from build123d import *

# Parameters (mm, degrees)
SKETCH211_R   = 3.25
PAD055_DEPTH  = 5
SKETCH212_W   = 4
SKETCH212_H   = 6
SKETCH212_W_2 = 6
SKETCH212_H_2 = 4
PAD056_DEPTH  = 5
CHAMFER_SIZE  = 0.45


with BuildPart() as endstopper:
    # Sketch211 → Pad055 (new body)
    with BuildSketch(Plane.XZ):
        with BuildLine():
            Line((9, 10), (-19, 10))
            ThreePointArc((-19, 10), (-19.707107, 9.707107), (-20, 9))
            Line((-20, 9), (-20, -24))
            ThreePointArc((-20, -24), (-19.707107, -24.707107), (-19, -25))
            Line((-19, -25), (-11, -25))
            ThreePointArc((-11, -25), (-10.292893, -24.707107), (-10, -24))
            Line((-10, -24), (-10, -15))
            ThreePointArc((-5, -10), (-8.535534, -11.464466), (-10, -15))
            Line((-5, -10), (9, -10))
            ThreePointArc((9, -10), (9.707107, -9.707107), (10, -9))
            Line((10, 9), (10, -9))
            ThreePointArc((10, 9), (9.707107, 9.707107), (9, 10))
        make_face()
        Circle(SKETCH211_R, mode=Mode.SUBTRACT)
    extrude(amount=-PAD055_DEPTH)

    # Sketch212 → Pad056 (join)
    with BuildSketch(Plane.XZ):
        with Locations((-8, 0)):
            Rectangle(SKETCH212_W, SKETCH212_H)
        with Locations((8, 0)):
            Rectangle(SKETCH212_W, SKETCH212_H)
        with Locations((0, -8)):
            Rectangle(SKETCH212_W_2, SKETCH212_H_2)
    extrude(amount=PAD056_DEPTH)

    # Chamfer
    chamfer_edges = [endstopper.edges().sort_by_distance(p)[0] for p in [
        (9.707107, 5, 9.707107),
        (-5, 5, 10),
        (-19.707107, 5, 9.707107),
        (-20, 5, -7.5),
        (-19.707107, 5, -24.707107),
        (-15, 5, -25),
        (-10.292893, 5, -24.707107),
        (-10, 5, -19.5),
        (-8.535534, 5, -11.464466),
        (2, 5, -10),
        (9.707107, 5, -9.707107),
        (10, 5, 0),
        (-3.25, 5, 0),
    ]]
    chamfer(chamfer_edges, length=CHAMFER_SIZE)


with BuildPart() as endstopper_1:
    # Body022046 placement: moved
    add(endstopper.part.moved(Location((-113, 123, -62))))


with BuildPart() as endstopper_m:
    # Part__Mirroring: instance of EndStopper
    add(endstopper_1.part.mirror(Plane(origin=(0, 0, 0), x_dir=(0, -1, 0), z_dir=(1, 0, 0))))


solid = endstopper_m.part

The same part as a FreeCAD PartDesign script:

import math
import FreeCAD as App
import Part
import Sketcher
from FreeCAD import Vector


def edges_at(feature, points):
    """Names of the edges that pass closest to the given points."""
    edges = feature.Shape.Edges
    near = lambda p: min(range(len(edges)), key=lambda i: edges[i].distToShape(Part.Vertex(*p))[0])
    return sorted({f"Edge{near(p) + 1}" for p in points})

doc = App.newDocument("Part")
body = doc.addObject("PartDesign::Body", "Body")

sketch1 = body.newObject("Sketcher::SketchObject", "Sketch")
sketch1.AttachmentSupport = (doc.getObject("XZ_Plane"), [""])
sketch1.MapMode = "FlatFace"
sketch1.addGeometry([
    Part.LineSegment(Vector(9, 10, 0), Vector(-19, 10, 0)),
    Part.ArcOfCircle(Part.Circle(Vector(-19, 9, 0), Vector(0, 0, 1), 1), math.radians(90), math.radians(180)),
    Part.LineSegment(Vector(-20, 9, 0), Vector(-20, -24, 0)),
    Part.ArcOfCircle(Part.Circle(Vector(-19, -24, 0), Vector(0, 0, 1), 1), math.radians(180), math.radians(270)),
    Part.LineSegment(Vector(-19, -25, 0), Vector(-11, -25, 0)),
    Part.ArcOfCircle(Part.Circle(Vector(-11, -24, 0), Vector(0, 0, 1), 1), math.radians(-90), math.radians(0)),
    Part.LineSegment(Vector(-10, -24, 0), Vector(-10, -15, 0)),
    Part.ArcOfCircle(Part.Circle(Vector(-5, -15, 0), Vector(0, 0, 1), 5), math.radians(90), math.radians(180)),
    Part.LineSegment(Vector(-5, -10, 0), Vector(9, -10, 0)),
    Part.ArcOfCircle(Part.Circle(Vector(9, -9, 0), Vector(0, 0, 1), 1), math.radians(-90), math.radians(0)),
    Part.LineSegment(Vector(10, -9, 0), Vector(10, 9, 0)),
    Part.ArcOfCircle(Part.Circle(Vector(9, 9, 0), Vector(0, 0, 1), 1), math.radians(0), math.radians(90)),
    Part.Circle(Vector(0, 0, 0), Vector(0, 0, 1), 3.2),
], False)
sketch1.addConstraint([
    Sketcher.Constraint("Tangent", 0, 2, 1, 1),
    Sketcher.Constraint("Tangent", 1, 2, 2, 1),
    Sketcher.Constraint("Tangent", 2, 2, 3, 1),
    Sketcher.Constraint("Tangent", 3, 2, 4, 1),
    Sketcher.Constraint("Tangent", 4, 2, 5, 1),
    Sketcher.Constraint("Tangent", 5, 2, 6, 1),
    Sketcher.Constraint("Tangent", 6, 2, 7, 2),
    Sketcher.Constraint("Tangent", 7, 1, 8, 1),
    Sketcher.Constraint("Tangent", 8, 2, 9, 1),
    Sketcher.Constraint("Tangent", 9, 2, 10, 1),
    Sketcher.Constraint("Tangent", 10, 2, 11, 1),
    Sketcher.Constraint("Tangent", 11, 2, 0, 1),
    Sketcher.Constraint("Horizontal", 0),
    Sketcher.Constraint("Vertical", 2),
    Sketcher.Constraint("Horizontal", 4),
    Sketcher.Constraint("Vertical", 6),
    Sketcher.Constraint("Horizontal", 8),
    Sketcher.Constraint("Vertical", 10),
    Sketcher.Constraint("Coincident", 12, 3, -1, 1),
    Sketcher.Constraint("Equal", 1, 3),
    Sketcher.Constraint("Equal", 3, 5),
    Sketcher.Constraint("Equal", 5, 9),
    Sketcher.Constraint("Equal", 9, 11),
    Sketcher.Constraint("Radius", 1, 0.999999),
    Sketcher.Constraint("Radius", 7, 5.0),
    Sketcher.Constraint("Diameter", 12, 6.5),
    Sketcher.Constraint("DistanceX", 0, 2, 0, 1, 28.0),
    Sketcher.Constraint("DistanceX", 4, 1, 4, 2, 8.0),
    Sketcher.Constraint("DistanceY", 2, 2, 2, 1, 33.0),
    Sketcher.Constraint("DistanceY", 6, 1, 6, 2, 9.0),
    Sketcher.Constraint("DistanceX", 1, 3, -1, 1, 19.000001),
    Sketcher.Constraint("DistanceY", -1, 1, 1, 3, 9.000001),
])
pad1 = body.newObject("PartDesign::Pad", "Pad")
pad1.Profile = sketch1
pad1.Length = 5
pad1.Reversed = True

sketch2 = body.newObject("Sketcher::SketchObject", "Sketch001")
sketch2.AttachmentSupport = (doc.getObject("XZ_Plane"), [""])
sketch2.MapMode = "FlatFace"
sketch2.addGeometry([
    Part.LineSegment(Vector(-10, 3, 0), Vector(-10, -3, 0)),
    Part.LineSegment(Vector(-10, -3, 0), Vector(-6, -3, 0)),
    Part.LineSegment(Vector(-6, -3, 0), Vector(-6, 3, 0)),
    Part.LineSegment(Vector(-6, 3, 0), Vector(-10, 3, 0)),
    Part.LineSegment(Vector(6, 3, 0), Vector(6, -3, 0)),
    Part.LineSegment(Vector(6, -3, 0), Vector(10, -3, 0)),
    Part.LineSegment(Vector(10, -3, 0), Vector(10, 3, 0)),
    Part.LineSegment(Vector(10, 3, 0), Vector(6, 3, 0)),
    Part.LineSegment(Vector(-3, -6, 0), Vector(-3, -10, 0)),
    Part.LineSegment(Vector(-3, -10, 0), Vector(3, -10, 0)),
    Part.LineSegment(Vector(3, -10, 0), Vector(3, -6, 0)),
    Part.LineSegment(Vector(3, -6, 0), Vector(-3, -6, 0)),
], False)
sketch2.addConstraint([
    Sketcher.Constraint("Coincident", 0, 2, 1, 1),
    Sketcher.Constraint("Coincident", 1, 2, 2, 1),
    Sketcher.Constraint("Coincident", 2, 2, 3, 1),
    Sketcher.Constraint("Coincident", 3, 2, 0, 1),
    Sketcher.Constraint("Coincident", 4, 2, 5, 1),
    Sketcher.Constraint("Coincident", 5, 2, 6, 1),
    Sketcher.Constraint("Coincident", 6, 2, 7, 1),
    Sketcher.Constraint("Coincident", 7, 2, 4, 1),
    Sketcher.Constraint("Coincident", 8, 2, 9, 1),
    Sketcher.Constraint("Coincident", 9, 2, 10, 1),
    Sketcher.Constraint("Coincident", 10, 2, 11, 1),
    Sketcher.Constraint("Coincident", 11, 2, 8, 1),
    Sketcher.Constraint("Vertical", 0),
    Sketcher.Constraint("Horizontal", 1),
    Sketcher.Constraint("Vertical", 2),
    Sketcher.Constraint("Horizontal", 3),
    Sketcher.Constraint("Vertical", 4),
    Sketcher.Constraint("Horizontal", 5),
    Sketcher.Constraint("Vertical", 6),
    Sketcher.Constraint("Horizontal", 7),
    Sketcher.Constraint("Vertical", 8),
    Sketcher.Constraint("Horizontal", 9),
    Sketcher.Constraint("Vertical", 10),
    Sketcher.Constraint("Horizontal", 11),
    Sketcher.Constraint("Symmetric", 2, 2, 4, 2, -1, 1),
    Sketcher.Constraint("Symmetric", 0, 2, 6, 2, -1, 1),
    Sketcher.Constraint("Horizontal", 1, 2, 4, 2),
    Sketcher.Constraint("Equal", 11, 0),
    Sketcher.Constraint("Equal", 7, 8),
    Sketcher.Constraint("DistanceX", 1, 1, 1, 2, 4.0),
    Sketcher.Constraint("DistanceX", 9, 1, 9, 2, 6.0),
    Sketcher.Constraint("DistanceX", 0, 2, -1, 1, 10.0),
    Sketcher.Constraint("DistanceX", 8, 2, -1, 1, 3.0),
    Sketcher.Constraint("DistanceY", 8, 2, -1, 1, 10.0),
])
pad2 = body.newObject("PartDesign::Pad", "Pad001")
pad2.Profile = sketch2
pad2.Length = 5
doc.recompute()

chamfer = body.newObject("PartDesign::Chamfer", "Chamfer")
chamfer.Base = (pad2, edges_at(pad2, [
    (9.707, 5, 9.707),
    (-5, 5, 10),
    (-19.707, 5, 9.707),
    (-20, 5, -7.5),
    (-19.707, 5, -24.707),
    (-15, 5, -25),
    (-10.293, 5, -24.707),
    (-10, 5, -19.5),
    (-8.536, 5, -11.464),
    (2, 5, -10),
    (9.707, 5, -9.707),
    (10, 5, 0),
    (-3.25, 5, 0),
]))
chamfer.Size = 0.45
body2 = doc.addObject("PartDesign::Body", "Body001")
doc.recompute()

body.Placement = App.Placement(Vector(-113, 123, -62), App.Rotation(Vector(0, 0, 1), 0))
boolean = body2.newObject("PartDesign::Boolean", "Boolean")
boolean.Type = "Fuse"
boolean.addObjects([body])
body3 = doc.addObject("PartDesign::Body", "Body002")
doc.recompute()

mirroring = doc.addObject("Part::Mirroring", "Mirroring")
mirroring.Source = body2
mirroring.Base = Vector(0, 0, 0)
mirroring.Normal = Vector(1, 0, 0)
body3.BaseFeature = mirroring
doc.recompute()
body2.Visibility = False
mirroring.Visibility = False

doc.recompute()
